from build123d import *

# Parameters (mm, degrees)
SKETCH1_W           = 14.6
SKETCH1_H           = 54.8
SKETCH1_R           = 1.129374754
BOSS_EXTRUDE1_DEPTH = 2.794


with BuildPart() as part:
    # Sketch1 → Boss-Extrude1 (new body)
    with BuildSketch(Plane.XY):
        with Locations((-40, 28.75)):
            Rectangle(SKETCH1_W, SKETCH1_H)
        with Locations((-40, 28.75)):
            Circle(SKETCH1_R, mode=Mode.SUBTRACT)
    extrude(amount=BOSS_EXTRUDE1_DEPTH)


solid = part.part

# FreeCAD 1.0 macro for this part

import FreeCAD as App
import Part
import Sketcher

V = App.Vector


def add_polygon(sketch, points):
    """Adds a closed chain of lines whose ends are joined by coincident constraints."""
    first, n = sketch.GeometryCount, len(points)
    for a, b in zip(points, points[1:] + points[:1]):
        sketch.addGeometry(Part.LineSegment(App.Vector(*a, 0), App.Vector(*b, 0)), False)
    for i in range(n):
        sketch.addConstraint(Sketcher.Constraint("Coincident", first + i, 2, first + (i + 1) % n, 1))

doc = App.newDocument("Part")
body = doc.addObject("PartDesign::Body", "Body")

sketch1 = doc.addObject("Sketcher::SketchObject", "Sketch")
body.addObject(sketch1)
sketch1.AttachmentSupport = (doc.XY_Plane, [""])
sketch1.MapMode = "FlatFace"
add_polygon(sketch1, [(-47.3, 56.1), (-47.3, 1.4), (-32.7, 1.4), (-32.7, 56.1)])
sketch1.addGeometry(Part.Circle(V(-40, 28.8, 0), V(0, 0, 1), 1.1), False)
sketch1.addConstraint(Sketcher.Constraint("Vertical", 0))
sketch1.addConstraint(Sketcher.Constraint("Horizontal", 1))
sketch1.addConstraint(Sketcher.Constraint("Vertical", 2))
sketch1.addConstraint(Sketcher.Constraint("Horizontal", 3))
sketch1.addConstraint(Sketcher.Constraint("DistanceX", 1, 1, 1, 2, 14.6))
sketch1.addConstraint(Sketcher.Constraint("DistanceY", 0, 2, 0, 1, 54.8))
sketch1.addConstraint(Sketcher.Constraint("DistanceX", 4, 3, -1, 1, 40.0))
sketch1.addConstraint(Sketcher.Constraint("DistanceX", 0, 2, -1, 1, 47.3))
sketch1.addConstraint(Sketcher.Constraint("DistanceY", 0, 2, 4, 3, 27.4))
sketch1.addConstraint(Sketcher.Constraint("Diameter", 4, 2.25875))
sketch1.addConstraint(Sketcher.Constraint("DistanceY", -1, 1, 4, 3, 28.75))
pad1 = doc.addObject("PartDesign::Pad", "Pad")
body.addObject(pad1)
pad1.Profile = sketch1
pad1.Length = 2.794

doc.recompute()
